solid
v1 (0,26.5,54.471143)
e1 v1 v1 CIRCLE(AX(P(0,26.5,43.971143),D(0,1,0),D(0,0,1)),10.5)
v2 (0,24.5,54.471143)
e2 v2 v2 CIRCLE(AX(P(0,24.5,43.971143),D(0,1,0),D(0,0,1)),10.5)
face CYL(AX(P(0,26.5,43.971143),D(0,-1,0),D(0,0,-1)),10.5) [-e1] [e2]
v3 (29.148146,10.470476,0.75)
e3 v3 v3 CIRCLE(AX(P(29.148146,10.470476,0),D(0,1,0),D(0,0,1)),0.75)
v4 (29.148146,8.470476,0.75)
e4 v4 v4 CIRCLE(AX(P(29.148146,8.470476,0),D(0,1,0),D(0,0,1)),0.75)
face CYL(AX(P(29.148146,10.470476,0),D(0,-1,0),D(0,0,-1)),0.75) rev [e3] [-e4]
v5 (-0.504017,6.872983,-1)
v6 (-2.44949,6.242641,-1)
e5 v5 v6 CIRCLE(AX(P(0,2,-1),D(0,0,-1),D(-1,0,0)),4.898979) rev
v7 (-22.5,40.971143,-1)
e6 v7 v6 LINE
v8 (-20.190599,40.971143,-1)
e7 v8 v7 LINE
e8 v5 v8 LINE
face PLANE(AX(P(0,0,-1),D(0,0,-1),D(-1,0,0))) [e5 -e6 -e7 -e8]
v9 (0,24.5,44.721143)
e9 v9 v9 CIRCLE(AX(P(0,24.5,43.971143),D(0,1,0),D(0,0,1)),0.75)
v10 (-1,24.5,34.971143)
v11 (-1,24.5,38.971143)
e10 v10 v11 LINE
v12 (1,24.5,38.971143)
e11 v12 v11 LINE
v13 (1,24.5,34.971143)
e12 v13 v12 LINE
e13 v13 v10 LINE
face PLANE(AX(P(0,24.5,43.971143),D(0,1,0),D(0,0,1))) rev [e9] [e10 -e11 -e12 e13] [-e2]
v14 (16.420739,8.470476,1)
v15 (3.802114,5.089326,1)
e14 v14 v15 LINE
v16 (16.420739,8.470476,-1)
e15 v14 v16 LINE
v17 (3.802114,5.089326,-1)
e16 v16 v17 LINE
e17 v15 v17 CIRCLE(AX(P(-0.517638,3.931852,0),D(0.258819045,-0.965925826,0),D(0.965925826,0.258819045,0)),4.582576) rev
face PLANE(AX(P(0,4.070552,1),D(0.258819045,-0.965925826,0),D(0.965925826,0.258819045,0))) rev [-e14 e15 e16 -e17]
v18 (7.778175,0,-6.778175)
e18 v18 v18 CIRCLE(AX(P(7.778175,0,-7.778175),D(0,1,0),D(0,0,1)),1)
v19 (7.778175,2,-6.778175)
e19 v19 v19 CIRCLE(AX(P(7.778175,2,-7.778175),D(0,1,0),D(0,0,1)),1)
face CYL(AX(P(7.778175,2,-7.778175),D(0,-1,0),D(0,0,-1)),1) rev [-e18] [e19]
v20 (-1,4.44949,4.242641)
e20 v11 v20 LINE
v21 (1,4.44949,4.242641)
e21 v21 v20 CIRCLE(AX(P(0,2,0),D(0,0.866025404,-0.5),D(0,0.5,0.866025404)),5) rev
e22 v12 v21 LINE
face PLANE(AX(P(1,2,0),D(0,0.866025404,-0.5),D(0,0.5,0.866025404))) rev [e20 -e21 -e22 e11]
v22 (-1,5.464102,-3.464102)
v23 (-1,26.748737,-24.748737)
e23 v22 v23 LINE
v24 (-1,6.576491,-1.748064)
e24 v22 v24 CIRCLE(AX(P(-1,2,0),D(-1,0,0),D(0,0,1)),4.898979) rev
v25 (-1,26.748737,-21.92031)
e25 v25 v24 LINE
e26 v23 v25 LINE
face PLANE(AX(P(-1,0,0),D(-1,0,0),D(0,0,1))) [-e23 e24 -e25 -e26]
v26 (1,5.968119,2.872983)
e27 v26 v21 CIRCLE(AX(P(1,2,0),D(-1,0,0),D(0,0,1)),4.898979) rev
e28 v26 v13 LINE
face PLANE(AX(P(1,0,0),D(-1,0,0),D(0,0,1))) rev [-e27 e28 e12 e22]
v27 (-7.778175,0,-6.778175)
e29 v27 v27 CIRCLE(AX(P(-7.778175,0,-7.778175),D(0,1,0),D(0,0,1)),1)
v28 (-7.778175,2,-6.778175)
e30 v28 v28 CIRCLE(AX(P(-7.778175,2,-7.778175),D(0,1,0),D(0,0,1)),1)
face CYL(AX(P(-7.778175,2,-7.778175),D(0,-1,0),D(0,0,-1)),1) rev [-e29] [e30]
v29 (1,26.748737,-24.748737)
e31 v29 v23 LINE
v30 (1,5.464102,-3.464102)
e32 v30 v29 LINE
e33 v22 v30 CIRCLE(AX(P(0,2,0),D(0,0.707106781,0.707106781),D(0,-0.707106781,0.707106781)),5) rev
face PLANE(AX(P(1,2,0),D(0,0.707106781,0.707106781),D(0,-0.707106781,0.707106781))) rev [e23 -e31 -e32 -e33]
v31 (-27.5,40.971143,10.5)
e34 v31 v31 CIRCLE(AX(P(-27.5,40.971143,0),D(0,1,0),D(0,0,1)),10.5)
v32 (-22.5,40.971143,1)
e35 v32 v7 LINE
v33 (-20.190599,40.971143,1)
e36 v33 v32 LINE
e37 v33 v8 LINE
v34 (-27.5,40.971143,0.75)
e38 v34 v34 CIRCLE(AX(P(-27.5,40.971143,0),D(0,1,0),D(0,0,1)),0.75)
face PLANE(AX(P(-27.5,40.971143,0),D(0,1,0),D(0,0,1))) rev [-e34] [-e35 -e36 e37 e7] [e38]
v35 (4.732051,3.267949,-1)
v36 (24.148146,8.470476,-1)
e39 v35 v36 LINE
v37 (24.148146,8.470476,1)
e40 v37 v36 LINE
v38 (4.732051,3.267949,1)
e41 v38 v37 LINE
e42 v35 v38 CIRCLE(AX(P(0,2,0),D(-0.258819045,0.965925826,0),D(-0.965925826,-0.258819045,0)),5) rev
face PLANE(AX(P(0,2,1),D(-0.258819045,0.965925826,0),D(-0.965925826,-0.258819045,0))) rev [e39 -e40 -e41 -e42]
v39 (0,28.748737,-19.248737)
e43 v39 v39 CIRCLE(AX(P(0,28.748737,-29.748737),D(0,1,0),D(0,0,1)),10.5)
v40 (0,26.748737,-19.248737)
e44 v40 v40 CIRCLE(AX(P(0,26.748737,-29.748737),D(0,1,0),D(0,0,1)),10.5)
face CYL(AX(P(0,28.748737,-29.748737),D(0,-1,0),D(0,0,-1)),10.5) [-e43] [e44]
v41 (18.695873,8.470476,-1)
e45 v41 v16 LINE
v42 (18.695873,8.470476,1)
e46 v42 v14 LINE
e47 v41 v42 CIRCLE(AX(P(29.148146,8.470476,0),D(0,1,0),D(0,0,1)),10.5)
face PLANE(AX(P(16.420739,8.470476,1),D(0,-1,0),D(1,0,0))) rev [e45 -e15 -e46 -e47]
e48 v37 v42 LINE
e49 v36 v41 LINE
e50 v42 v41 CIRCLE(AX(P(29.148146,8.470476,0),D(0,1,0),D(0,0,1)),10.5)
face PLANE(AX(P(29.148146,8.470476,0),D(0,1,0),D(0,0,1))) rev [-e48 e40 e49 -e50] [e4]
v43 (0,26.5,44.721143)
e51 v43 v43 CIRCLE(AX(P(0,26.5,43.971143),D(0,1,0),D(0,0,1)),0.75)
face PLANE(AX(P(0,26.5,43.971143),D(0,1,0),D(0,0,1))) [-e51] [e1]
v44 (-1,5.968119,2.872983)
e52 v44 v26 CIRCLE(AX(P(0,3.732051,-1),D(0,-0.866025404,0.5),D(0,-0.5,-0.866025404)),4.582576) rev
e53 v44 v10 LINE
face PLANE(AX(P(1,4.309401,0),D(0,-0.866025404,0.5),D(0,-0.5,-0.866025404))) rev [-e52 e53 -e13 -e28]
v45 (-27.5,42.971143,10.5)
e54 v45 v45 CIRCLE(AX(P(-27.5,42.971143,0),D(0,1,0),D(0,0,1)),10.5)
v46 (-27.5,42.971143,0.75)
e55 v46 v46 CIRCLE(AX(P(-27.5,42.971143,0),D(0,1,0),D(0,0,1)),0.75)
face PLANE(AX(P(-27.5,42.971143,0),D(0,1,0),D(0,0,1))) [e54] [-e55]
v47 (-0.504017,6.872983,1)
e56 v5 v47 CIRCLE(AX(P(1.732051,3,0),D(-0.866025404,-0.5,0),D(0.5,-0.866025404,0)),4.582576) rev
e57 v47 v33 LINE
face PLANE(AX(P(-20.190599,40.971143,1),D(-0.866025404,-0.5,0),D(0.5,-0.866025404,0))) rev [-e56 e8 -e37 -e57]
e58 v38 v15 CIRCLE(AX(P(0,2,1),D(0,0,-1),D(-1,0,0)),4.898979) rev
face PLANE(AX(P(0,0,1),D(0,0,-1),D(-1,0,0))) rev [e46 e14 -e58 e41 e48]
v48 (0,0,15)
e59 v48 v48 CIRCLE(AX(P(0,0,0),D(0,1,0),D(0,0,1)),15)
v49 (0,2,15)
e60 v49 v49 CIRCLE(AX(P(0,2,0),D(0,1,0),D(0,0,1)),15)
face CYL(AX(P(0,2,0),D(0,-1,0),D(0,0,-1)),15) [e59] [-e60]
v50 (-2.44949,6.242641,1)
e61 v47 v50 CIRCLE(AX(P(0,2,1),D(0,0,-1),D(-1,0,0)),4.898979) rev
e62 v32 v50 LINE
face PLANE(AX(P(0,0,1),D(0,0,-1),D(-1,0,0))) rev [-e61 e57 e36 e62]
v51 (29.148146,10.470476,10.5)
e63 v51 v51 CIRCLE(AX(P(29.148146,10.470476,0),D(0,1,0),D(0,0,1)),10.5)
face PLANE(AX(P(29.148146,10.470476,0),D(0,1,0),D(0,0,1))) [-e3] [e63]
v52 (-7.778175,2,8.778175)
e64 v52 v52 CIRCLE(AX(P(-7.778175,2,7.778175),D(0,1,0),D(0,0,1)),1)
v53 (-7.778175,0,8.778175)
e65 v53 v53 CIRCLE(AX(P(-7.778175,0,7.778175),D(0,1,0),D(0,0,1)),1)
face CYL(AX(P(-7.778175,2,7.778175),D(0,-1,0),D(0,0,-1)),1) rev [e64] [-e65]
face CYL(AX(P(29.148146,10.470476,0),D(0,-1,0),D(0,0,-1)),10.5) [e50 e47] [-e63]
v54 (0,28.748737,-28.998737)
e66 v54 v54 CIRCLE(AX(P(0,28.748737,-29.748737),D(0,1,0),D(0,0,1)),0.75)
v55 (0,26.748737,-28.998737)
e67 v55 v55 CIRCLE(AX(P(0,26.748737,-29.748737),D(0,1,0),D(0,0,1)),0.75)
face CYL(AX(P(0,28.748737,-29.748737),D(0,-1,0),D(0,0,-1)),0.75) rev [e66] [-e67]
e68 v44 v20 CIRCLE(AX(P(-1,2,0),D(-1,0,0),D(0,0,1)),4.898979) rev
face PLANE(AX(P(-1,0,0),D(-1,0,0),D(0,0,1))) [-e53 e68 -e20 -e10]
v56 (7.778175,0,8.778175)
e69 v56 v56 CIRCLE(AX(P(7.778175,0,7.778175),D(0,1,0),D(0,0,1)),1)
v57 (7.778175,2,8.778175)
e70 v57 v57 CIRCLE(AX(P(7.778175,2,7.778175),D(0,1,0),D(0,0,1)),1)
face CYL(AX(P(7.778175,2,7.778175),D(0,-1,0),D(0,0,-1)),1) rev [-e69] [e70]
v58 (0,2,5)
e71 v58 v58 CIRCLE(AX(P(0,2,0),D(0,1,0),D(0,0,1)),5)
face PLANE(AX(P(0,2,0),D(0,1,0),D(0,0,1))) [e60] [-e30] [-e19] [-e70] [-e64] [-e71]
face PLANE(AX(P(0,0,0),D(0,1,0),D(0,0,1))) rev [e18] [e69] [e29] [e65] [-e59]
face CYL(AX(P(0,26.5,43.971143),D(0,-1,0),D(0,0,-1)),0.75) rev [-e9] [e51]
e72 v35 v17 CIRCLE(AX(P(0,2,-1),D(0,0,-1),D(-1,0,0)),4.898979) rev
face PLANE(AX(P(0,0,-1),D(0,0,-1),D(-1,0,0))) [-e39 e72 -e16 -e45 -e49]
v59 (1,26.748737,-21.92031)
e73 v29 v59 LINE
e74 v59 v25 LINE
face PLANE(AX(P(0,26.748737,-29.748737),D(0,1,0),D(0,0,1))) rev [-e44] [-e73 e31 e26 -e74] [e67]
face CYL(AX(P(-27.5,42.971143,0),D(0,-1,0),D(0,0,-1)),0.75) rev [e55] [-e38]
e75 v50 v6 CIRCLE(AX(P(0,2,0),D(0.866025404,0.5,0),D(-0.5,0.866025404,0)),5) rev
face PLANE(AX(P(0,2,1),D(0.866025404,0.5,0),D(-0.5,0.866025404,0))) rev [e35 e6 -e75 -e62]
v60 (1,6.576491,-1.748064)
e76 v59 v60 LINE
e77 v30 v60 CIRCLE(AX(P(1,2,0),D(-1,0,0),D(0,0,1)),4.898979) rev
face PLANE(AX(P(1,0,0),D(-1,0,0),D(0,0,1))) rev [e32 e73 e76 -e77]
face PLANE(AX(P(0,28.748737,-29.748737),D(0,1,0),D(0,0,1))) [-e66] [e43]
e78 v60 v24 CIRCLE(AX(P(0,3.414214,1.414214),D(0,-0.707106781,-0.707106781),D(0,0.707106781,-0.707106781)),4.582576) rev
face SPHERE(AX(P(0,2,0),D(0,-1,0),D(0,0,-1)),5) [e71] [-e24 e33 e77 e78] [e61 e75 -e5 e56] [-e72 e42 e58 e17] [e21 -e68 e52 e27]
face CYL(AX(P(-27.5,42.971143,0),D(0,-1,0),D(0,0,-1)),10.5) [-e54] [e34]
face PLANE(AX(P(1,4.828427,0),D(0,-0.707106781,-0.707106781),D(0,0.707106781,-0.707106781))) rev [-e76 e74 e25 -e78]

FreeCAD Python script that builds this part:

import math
import FreeCAD as App
import Part
import Sketcher

V = App.Vector
Q = App.Units.Quantity

doc = App.newDocument("Part")
body = doc.addObject("PartDesign::Body", "Body")

sketch1 = body.newObject("Sketcher::SketchObject", "Sketch")
sketch1.AttachmentSupport = (doc.getObject("XZ_Plane"), [""])
sketch1.MapMode = "FlatFace"
sketch1.addGeometry([
    Part.Circle(V(0, 0, 0), V(0, 0, 1), 15),
    Part.Circle(V(-7.778175, -7.778175, 0), V(0, 0, 1), 1),
    Part.Circle(V(-7.778175, 7.778175, 0), V(0, 0, 1), 1),
    Part.Circle(V(7.778175, -7.778175, 0), V(0, 0, 1), 1),
    Part.Circle(V(7.778175, 7.778175, 0), V(0, 0, 1), 1),
], False)
sketch1.addConstraint([
    Sketcher.Constraint("Coincident", 0, 3, -1, 1),
    Sketcher.Constraint("Equal", 1, 2),
    Sketcher.Constraint("Equal", 2, 3),
    Sketcher.Constraint("Equal", 3, 4),
    Sketcher.Constraint("Symmetric", 2, 3, 3, 3, -1, 1),
    Sketcher.Constraint("Symmetric", 1, 3, 4, 3, -1, 1),
    Sketcher.Constraint("Symmetric", 1, 3, 3, 3, -2),
    Sketcher.Constraint("Diameter", 0, Q("30 mm")),
    Sketcher.Constraint("Diameter", 1, Q("2 mm")),
    Sketcher.Constraint("DistanceY", 1, 3, 2, 3, Q("15.556349 mm")),
    Sketcher.Constraint("DistanceX", 1, 3, 3, 3, Q("15.556349 mm")),
])
pad1 = body.newObject("PartDesign::Pad", "Pad")
pad1.Profile = sketch1
pad1.Length = 2
pad1.Reversed = True

sketch2 = body.newObject("Sketcher::SketchObject", "Sketch001")
sketch2.AttachmentSupport = (doc.getObject("YZ_Plane"), [""])
sketch2.MapMode = "FlatFace"
sketch2.addGeometry([
    Part.LineSegment(V(7, 0, 0), V(2, 0, 0)),
    Part.LineSegment(V(2, 0, 0), V(2, -5, 0)),
    Part.ArcOfCircle(Part.Circle(V(2, 0, 0), V(0, 0, 1), 5), math.radians(-90), math.radians(0)),
], False)
sketch2.addConstraint([
    Sketcher.Constraint("Coincident", 0, 2, 1, 1),
    Sketcher.Constraint("Coincident", 1, 2, 2, 1),
    Sketcher.Constraint("Coincident", 2, 2, 0, 1),
    Sketcher.Constraint("Horizontal", 0),
    Sketcher.Constraint("Vertical", 1),
    Sketcher.Constraint("Coincident", 0, 2, 2, 3),
    Sketcher.Constraint("PointOnObject", 2, 3, -1),
    Sketcher.Constraint("Radius", 2, Q("5 mm")),
    Sketcher.Constraint("DistanceX", -1, 1, 2, 3, Q("2 mm")),
])
revolution = body.newObject("PartDesign::Revolution", "Revolution")
revolution.Profile = sketch2
revolution.ReferenceAxis = (sketch2, ["H_Axis"])
revolution.Angle = 360

sketch3 = body.newObject("Sketcher::SketchObject", "Sketch002")
sketch3.AttachmentSupport = (doc.getObject("XY_Plane"), [""])
sketch3.MapMode = "FlatFace"
sketch3.addGeometry([
    Part.LineSegment(V(0, 2, 0), V(24.148146, 8.470476, 0)),
    Part.LineSegment(V(24.148146, 8.470476, 0), V(16.420739, 8.470476, 0)),
    Part.LineSegment(V(16.420739, 8.470476, 0), V(0, 4.070552, 0)),
    Part.LineSegment(V(0, 4.070552, 0), V(0, 6, 0)),
    Part.LineSegment(V(0, 6, 0), V(-20.190599, 40.971143, 0)),
    Part.LineSegment(V(-20.190599, 40.971143, 0), V(-22.5, 40.971143, 0)),
    Part.LineSegment(V(-22.5, 40.971143, 0), V(0, 2, 0)),
], False)
sketch3.addConstraint([
    Sketcher.Constraint("Coincident", 0, 2, 1, 1),
    Sketcher.Constraint("Coincident", 1, 2, 2, 1),
    Sketcher.Constraint("Coincident", 2, 2, 3, 1),
    Sketcher.Constraint("Coincident", 3, 2, 4, 1),
    Sketcher.Constraint("Coincident", 4, 2, 5, 1),
    Sketcher.Constraint("Coincident", 5, 2, 6, 1),
    Sketcher.Constraint("Coincident", 6, 2, 0, 1),
    Sketcher.Constraint("Horizontal", 1),
    Sketcher.Constraint("Vertical", 3),
    Sketcher.Constraint("Horizontal", 5),
    Sketcher.Constraint("PointOnObject", 2, 2, -2),
    Sketcher.Constraint("PointOnObject", 6, 2, -2),
    Sketcher.Constraint("Parallel", 0, 2),
    Sketcher.Constraint("Parallel", 4, 6),
    Sketcher.Constraint("Angle", 0, Q("15 deg")),
    Sketcher.Constraint("Angle", 4, Q("120 deg")),
    Sketcher.Constraint("Distance", 0, Q("25 mm")),
    Sketcher.Constraint("Distance", 2, Q("17 mm")),
    Sketcher.Constraint("Distance", 6, Q("45 mm")),
    Sketcher.Constraint("DistanceY", -1, 1, 3, 2, Q("6 mm")),
    Sketcher.Constraint("DistanceY", -1, 1, 6, 2, Q("2 mm")),
])
pad2 = body.newObject("PartDesign::Pad", "Pad001")
pad2.Profile = sketch3
pad2.Length = 2
pad2.Midplane = True

sketch4 = body.newObject("Sketcher::SketchObject", "Sketch003")
sketch4.AttachmentSupport = (doc.getObject("XZ_Plane"), [""])
sketch4.MapMode = "FlatFace"
sketch4.AttachmentOffset = App.Placement(V(0, 0, -8.470476), App.Rotation())
sketch4.addGeometry([
    Part.Circle(V(29.148146, 0, 0), V(0, 0, 1), 10.5),
    Part.Circle(V(29.148146, 0, 0), V(0, 0, 1), 0.75),
], False)
sketch4.addConstraint([
    Sketcher.Constraint("Coincident", 1, 3, 0, 3),
    Sketcher.Constraint("PointOnObject", 0, 3, -1),
    Sketcher.Constraint("Diameter", 0, Q("21 mm")),
    Sketcher.Constraint("Diameter", 1, Q("1.5 mm")),
    Sketcher.Constraint("DistanceX", -1, 1, 0, 3, Q("29.148146 mm")),
])
pad3 = body.newObject("PartDesign::Pad", "Pad002")
pad3.Profile = sketch4
pad3.Length = 2
pad3.Reversed = True

sketch5 = body.newObject("Sketcher::SketchObject", "Sketch004")
sketch5.AttachmentSupport = (doc.getObject("XZ_Plane"), [""])
sketch5.MapMode = "FlatFace"
sketch5.AttachmentOffset = App.Placement(V(0, 0, -40.971143), App.Rotation())
sketch5.addGeometry([
    Part.Circle(V(-27.5, 0, 0), V(0, 0, 1), 10.5),
    Part.Circle(V(-27.5, 0, 0), V(0, 0, 1), 0.75),
], False)
sketch5.addConstraint([
    Sketcher.Constraint("Coincident", 1, 3, 0, 3),
    Sketcher.Constraint("PointOnObject", 0, 3, -1),
    Sketcher.Constraint("Diameter", 0, Q("21 mm")),
    Sketcher.Constraint("Diameter", 1, Q("1.5 mm")),
    Sketcher.Constraint("DistanceX", 0, 3, -1, 1, Q("27.5 mm")),
])
pad4 = body.newObject("PartDesign::Pad", "Pad003")
pad4.Profile = sketch5
pad4.Length = 2
pad4.Reversed = True

sketch6 = body.newObject("Sketcher::SketchObject", "Sketch005")
sketch6.AttachmentSupport = (doc.getObject("YZ_Plane"), [""])
sketch6.MapMode = "FlatFace"
sketch6.addGeometry([
    Part.LineSegment(V(2, 0, 0), V(26.748737, -24.748737, 0)),
    Part.LineSegment(V(26.748737, -24.748737, 0), V(26.748737, -21.92031, 0)),
    Part.LineSegment(V(26.748737, -21.92031, 0), V(4.828427, 0, 0)),
    Part.LineSegment(V(4.828427, 0, 0), V(4.309401, 0, 0)),
    Part.LineSegment(V(4.309401, 0, 0), V(24.5, 34.971143, 0)),
    Part.LineSegment(V(24.5, 34.971143, 0), V(24.5, 38.971143, 0)),
    Part.LineSegment(V(24.5, 38.971143, 0), V(2, 0, 0)),
], False)
sketch6.addConstraint([
    Sketcher.Constraint("Coincident", 0, 2, 1, 1),
    Sketcher.Constraint("Coincident", 1, 2, 2, 1),
    Sketcher.Constraint("Coincident", 2, 2, 3, 1),
    Sketcher.Constraint("Coincident", 3, 2, 4, 1),
    Sketcher.Constraint("Coincident", 4, 2, 5, 1),
    Sketcher.Constraint("Coincident", 5, 2, 6, 1),
    Sketcher.Constraint("Coincident", 6, 2, 0, 1),
    Sketcher.Constraint("Vertical", 1),
    Sketcher.Constraint("Horizontal", 3),
    Sketcher.Constraint("Vertical", 5),
    Sketcher.Constraint("PointOnObject", 2, 2, -1),
    Sketcher.Constraint("PointOnObject", 6, 2, -1),
    Sketcher.Constraint("Parallel", 0, 2),
    Sketcher.Constraint("Parallel", 4, 6),
    Sketcher.Constraint("DistanceY", 5, 1, 5, 2, Q("4 mm")),
    Sketcher.Constraint("Angle", 0, Q("-45 deg")),
    Sketcher.Constraint("Angle", 4, Q("60 deg")),
    Sketcher.Constraint("Distance", 0, Q("35 mm")),
    Sketcher.Constraint("Distance", 2, Q("31 mm")),
    Sketcher.Constraint("Distance", 6, Q("45 mm")),
    Sketcher.Constraint("DistanceX", -1, 1, 6, 2, Q("2 mm")),
])
pad5 = body.newObject("PartDesign::Pad", "Pad004")
pad5.Profile = sketch6
pad5.Length = 2
pad5.Midplane = True

sketch7 = body.newObject("Sketcher::SketchObject", "Sketch006")
sketch7.AttachmentSupport = (doc.getObject("XZ_Plane"), [""])
sketch7.MapMode = "FlatFace"
sketch7.AttachmentOffset = App.Placement(V(0, 0, -26.748737), App.Rotation())
sketch7.addGeometry([
    Part.Circle(V(0, -29.748737, 0), V(0, 0, 1), 10.5),
    Part.Circle(V(0, -29.748737, 0), V(0, 0, 1), 0.75),
], False)
sketch7.addConstraint([
    Sketcher.Constraint("Coincident", 1, 3, 0, 3),
    Sketcher.Constraint("PointOnObject", 0, 3, -2),
    Sketcher.Constraint("Diameter", 0, Q("21 mm")),
    Sketcher.Constraint("Diameter", 1, Q("1.5 mm")),
    Sketcher.Constraint("DistanceY", 0, 3, -1, 1, Q("29.748737 mm")),
])
pad6 = body.newObject("PartDesign::Pad", "Pad005")
pad6.Profile = sketch7
pad6.Length = 2
pad6.Reversed = True

sketch8 = body.newObject("Sketcher::SketchObject", "Sketch007")
sketch8.AttachmentSupport = (doc.getObject("XZ_Plane"), [""])
sketch8.MapMode = "FlatFace"
sketch8.AttachmentOffset = App.Placement(V(0, 0, -24.5), App.Rotation())
sketch8.addGeometry([
    Part.Circle(V(0, 43.971143, 0), V(0, 0, 1), 10.5),
    Part.Circle(V(0, 43.971143, 0), V(0, 0, 1), 0.75),
], False)
sketch8.addConstraint([
    Sketcher.Constraint("Coincident", 1, 3, 0, 3),
    Sketcher.Constraint("PointOnObject", 0, 3, -2),
    Sketcher.Constraint("Diameter", 0, Q("21 mm")),
    Sketcher.Constraint("Diameter", 1, Q("1.5 mm")),
    Sketcher.Constraint("DistanceY", -1, 1, 0, 3, Q("43.971143 mm")),
])
pad7 = body.newObject("PartDesign::Pad", "Pad006")
pad7.Profile = sketch8
pad7.Length = 2
pad7.Reversed = True

doc.recompute()
